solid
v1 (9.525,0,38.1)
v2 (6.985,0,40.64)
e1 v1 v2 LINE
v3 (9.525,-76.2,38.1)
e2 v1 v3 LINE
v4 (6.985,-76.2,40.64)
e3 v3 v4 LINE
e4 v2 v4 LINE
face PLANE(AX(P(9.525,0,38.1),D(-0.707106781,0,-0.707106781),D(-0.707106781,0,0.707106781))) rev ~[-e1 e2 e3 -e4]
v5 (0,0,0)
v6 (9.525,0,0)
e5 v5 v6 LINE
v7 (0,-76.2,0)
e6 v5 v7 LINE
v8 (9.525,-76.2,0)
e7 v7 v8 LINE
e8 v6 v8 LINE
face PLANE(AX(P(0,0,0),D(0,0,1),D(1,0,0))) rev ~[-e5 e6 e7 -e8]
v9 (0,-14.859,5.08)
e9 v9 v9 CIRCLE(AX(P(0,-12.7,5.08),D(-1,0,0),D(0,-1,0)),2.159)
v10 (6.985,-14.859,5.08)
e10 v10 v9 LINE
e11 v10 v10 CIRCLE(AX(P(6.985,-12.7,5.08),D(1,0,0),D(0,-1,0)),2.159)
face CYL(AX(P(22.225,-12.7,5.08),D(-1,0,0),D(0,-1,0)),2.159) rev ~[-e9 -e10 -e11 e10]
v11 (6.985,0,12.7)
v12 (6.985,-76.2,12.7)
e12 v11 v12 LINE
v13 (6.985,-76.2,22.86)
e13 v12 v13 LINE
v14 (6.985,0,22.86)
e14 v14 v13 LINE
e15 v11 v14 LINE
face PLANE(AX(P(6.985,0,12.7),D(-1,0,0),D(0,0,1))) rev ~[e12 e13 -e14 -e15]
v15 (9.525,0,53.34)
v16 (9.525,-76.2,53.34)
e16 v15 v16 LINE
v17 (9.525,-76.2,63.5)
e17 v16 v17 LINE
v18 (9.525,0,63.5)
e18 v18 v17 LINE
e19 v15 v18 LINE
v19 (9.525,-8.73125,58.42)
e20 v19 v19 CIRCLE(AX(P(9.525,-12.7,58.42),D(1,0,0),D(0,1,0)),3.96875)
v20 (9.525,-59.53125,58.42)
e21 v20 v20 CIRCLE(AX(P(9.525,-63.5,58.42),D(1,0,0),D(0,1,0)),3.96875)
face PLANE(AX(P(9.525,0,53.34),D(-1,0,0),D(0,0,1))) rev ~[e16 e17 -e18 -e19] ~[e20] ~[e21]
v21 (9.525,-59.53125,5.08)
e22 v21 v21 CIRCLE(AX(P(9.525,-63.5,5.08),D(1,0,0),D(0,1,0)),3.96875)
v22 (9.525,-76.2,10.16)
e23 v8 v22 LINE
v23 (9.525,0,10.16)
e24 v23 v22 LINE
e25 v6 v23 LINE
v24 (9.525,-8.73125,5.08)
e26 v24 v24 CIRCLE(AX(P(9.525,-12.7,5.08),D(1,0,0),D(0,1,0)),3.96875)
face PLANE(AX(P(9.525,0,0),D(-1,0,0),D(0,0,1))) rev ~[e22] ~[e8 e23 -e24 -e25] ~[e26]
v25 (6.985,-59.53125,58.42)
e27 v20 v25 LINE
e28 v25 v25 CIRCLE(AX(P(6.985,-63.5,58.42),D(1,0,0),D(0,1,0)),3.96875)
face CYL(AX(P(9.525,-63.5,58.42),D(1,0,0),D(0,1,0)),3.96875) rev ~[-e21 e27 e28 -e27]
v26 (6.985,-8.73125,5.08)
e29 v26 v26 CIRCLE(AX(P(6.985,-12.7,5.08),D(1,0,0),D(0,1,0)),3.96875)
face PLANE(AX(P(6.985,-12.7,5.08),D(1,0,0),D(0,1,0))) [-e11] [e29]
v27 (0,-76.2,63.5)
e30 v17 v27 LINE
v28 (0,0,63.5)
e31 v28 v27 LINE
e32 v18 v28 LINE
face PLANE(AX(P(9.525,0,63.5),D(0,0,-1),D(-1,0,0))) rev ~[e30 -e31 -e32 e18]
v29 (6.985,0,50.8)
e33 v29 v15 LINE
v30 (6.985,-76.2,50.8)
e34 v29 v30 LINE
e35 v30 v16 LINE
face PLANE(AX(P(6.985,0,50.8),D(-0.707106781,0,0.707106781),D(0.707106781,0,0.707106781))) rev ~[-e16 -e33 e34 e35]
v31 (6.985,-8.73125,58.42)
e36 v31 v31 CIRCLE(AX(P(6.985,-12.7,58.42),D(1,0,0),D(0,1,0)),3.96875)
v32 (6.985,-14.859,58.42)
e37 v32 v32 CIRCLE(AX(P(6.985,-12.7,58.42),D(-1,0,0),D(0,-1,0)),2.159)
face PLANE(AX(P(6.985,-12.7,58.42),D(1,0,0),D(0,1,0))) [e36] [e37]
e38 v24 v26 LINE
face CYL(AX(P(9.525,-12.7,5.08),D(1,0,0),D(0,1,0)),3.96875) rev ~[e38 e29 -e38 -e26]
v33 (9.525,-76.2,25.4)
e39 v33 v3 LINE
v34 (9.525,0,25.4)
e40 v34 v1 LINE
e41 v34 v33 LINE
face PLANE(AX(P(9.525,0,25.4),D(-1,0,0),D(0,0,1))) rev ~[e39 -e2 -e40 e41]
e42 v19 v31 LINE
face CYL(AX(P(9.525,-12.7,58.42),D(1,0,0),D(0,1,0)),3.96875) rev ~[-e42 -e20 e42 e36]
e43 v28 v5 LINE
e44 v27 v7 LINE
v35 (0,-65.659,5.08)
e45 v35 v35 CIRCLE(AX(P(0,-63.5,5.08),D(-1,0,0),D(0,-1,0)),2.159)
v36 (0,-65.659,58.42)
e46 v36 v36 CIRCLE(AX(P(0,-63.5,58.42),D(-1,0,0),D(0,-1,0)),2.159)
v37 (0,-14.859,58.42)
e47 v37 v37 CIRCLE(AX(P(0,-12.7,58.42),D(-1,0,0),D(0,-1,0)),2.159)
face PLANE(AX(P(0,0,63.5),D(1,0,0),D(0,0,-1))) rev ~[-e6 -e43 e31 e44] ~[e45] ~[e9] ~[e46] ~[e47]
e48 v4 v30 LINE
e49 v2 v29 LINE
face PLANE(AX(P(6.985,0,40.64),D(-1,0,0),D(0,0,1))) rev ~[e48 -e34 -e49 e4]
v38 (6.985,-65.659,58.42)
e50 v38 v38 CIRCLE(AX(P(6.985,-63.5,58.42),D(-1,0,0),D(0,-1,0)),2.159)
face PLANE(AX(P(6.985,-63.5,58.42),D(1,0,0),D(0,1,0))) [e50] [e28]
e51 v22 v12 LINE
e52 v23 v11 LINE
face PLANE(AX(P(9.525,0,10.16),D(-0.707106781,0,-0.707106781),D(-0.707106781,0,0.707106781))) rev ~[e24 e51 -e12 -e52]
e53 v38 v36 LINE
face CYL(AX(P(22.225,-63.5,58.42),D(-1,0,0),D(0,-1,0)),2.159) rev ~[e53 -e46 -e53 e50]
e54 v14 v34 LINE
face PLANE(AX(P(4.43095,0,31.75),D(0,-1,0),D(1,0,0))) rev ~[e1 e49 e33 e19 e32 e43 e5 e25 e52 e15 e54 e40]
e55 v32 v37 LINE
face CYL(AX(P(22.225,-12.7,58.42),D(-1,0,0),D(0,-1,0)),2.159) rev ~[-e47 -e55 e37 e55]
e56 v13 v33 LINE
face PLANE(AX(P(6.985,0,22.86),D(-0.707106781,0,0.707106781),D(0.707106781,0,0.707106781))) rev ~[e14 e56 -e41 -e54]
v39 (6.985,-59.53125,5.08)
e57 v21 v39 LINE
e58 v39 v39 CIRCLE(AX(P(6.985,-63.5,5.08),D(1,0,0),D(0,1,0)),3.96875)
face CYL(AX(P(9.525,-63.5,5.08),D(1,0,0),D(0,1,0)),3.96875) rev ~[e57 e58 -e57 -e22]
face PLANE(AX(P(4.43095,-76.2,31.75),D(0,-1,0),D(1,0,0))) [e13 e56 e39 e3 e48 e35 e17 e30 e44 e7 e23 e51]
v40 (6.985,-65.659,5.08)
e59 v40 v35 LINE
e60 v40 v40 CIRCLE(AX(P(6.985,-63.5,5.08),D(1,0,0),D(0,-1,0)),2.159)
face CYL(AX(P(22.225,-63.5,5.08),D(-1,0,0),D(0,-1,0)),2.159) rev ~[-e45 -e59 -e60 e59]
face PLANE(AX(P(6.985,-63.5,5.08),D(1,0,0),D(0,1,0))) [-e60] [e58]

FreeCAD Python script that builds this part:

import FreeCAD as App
import Part
import Sketcher
Q = App.Units.Quantity

doc = App.newDocument("Part")
body = doc.addObject("PartDesign::Body", "Body")

sketch1 = body.newObject("Sketcher::SketchObject", "Sketch")
sketch1.AttachmentSupport = (doc.getObject("XZ_Plane"), [""])
sketch1.MapMode = "FlatFace"
sketch1.addGeometry([
    Part.LineSegment(App.Vector(0, 63.5, 0), App.Vector(0, 0, 0)),
    Part.LineSegment(App.Vector(0, 0, 0), App.Vector(9.525, 0, 0)),
    Part.LineSegment(App.Vector(9.525, 0, 0), App.Vector(9.525, 10.16, 0)),
    Part.LineSegment(App.Vector(9.525, 10.16, 0), App.Vector(6.985, 12.7, 0)),
    Part.LineSegment(App.Vector(6.985, 12.7, 0), App.Vector(6.985, 22.86, 0)),
    Part.LineSegment(App.Vector(6.985, 22.86, 0), App.Vector(9.525, 25.4, 0)),
    Part.LineSegment(App.Vector(9.525, 25.4, 0), App.Vector(9.525, 38.1, 0)),
    Part.LineSegment(App.Vector(9.525, 38.1, 0), App.Vector(6.985, 40.64, 0)),
    Part.LineSegment(App.Vector(6.985, 40.64, 0), App.Vector(6.985, 50.8, 0)),
    Part.LineSegment(App.Vector(6.985, 50.8, 0), App.Vector(9.525, 53.34, 0)),
    Part.LineSegment(App.Vector(9.525, 53.34, 0), App.Vector(9.525, 63.5, 0)),
    Part.LineSegment(App.Vector(9.525, 63.5, 0), App.Vector(0, 63.5, 0)),
], False)
sketch1.addConstraint([
    Sketcher.Constraint("Coincident", 0, 2, 1, 1),
    Sketcher.Constraint("Coincident", 1, 2, 2, 1),
    Sketcher.Constraint("Coincident", 2, 2, 3, 1),
    Sketcher.Constraint("Coincident", 3, 2, 4, 1),
    Sketcher.Constraint("Coincident", 4, 2, 5, 1),
    Sketcher.Constraint("Coincident", 5, 2, 6, 1),
    Sketcher.Constraint("Coincident", 6, 2, 7, 1),
    Sketcher.Constraint("Coincident", 7, 2, 8, 1),
    Sketcher.Constraint("Coincident", 8, 2, 9, 1),
    Sketcher.Constraint("Coincident", 9, 2, 10, 1),
    Sketcher.Constraint("Coincident", 10, 2, 11, 1),
    Sketcher.Constraint("Coincident", 11, 2, 0, 1),
    Sketcher.Constraint("Vertical", 0),
    Sketcher.Constraint("Horizontal", 1),
    Sketcher.Constraint("Vertical", 2),
    Sketcher.Constraint("Vertical", 4),
    Sketcher.Constraint("Vertical", 6),
    Sketcher.Constraint("Vertical", 8),
    Sketcher.Constraint("Vertical", 10),
    Sketcher.Constraint("Horizontal", 11),
    Sketcher.Constraint("Coincident", 0, 2, -1, 1),
    Sketcher.Constraint("Perpendicular", 3, 5),
    Sketcher.Constraint("Perpendicular", 5, 7),
    Sketcher.Constraint("Perpendicular", 7, 9),
    Sketcher.Constraint("Vertical", 2, 2, 5, 2),
    Sketcher.Constraint("Vertical", 4, 2, 7, 2),
    Sketcher.Constraint("Vertical", 6, 2, 9, 2),
    Sketcher.Constraint("Equal", 2, 4),
    Sketcher.Constraint("Equal", 4, 8),
    Sketcher.Constraint("Equal", 8, 10),
    Sketcher.Constraint("Equal", 3, 5),
    Sketcher.Constraint("DistanceY", 0, 2, 0, 1, Q("2.5 in")),
    Sketcher.Constraint("DistanceY", 2, 1, 2, 2, Q("0.4 in")),
    Sketcher.Constraint("DistanceY", 6, 1, 6, 2, Q("0.5 in")),
    Sketcher.Constraint("DistanceX", 1, 1, 1, 2, Q("0.375 in")),
])
pad1 = body.newObject("PartDesign::Pad", "Pad")
pad1.Profile = sketch1
pad1.Length = Q("3 in")

sketch2 = body.newObject("Sketcher::SketchObject", "Sketch001")
sketch2.AttachmentSupport = (doc.getObject("YZ_Plane"), [""])
sketch2.MapMode = "FlatFace"
sketch2.AttachmentOffset = App.Placement(App.Vector(0, 0, 0.375 * 25.4), App.Rotation())
sketch2.addGeometry([
    Part.Circle(App.Vector(-63.5, 58.42, 0), App.Vector(0, 0, 1), 2.159),
    Part.Circle(App.Vector(-12.7, 58.42, 0), App.Vector(0, 0, 1), 2.159),
    Part.Circle(App.Vector(-63.5, 5.08, 0), App.Vector(0, 0, 1), 2.159),
    Part.Circle(App.Vector(-12.7, 5.08, 0), App.Vector(0, 0, 1), 2.159),
], False)
sketch2.addConstraint([
    Sketcher.Constraint("Equal", 0, 1),
    Sketcher.Constraint("Equal", 1, 2),
    Sketcher.Constraint("Equal", 2, 3),
    Sketcher.Constraint("Horizontal", 0, 3, 1, 3),
    Sketcher.Constraint("Horizontal", 2, 3, 3, 3),
    Sketcher.Constraint("Vertical", 0, 3, 2, 3),
    Sketcher.Constraint("Vertical", 1, 3, 3, 3),
    Sketcher.Constraint("Diameter", 0, Q("0.17 in")),
    Sketcher.Constraint("DistanceX", 0, 3, 1, 3, Q("2 in")),
    Sketcher.Constraint("DistanceX", 0, 3, -1, 1, Q("2.5 in")),
    Sketcher.Constraint("DistanceY", -1, 1, 0, 3, Q("2.3 in")),
    Sketcher.Constraint("DistanceY", -1, 1, 2, 3, Q("0.2 in")),
])
doc.recompute()
hole = body.newObject("PartDesign::Hole", "Hole")
hole.Profile = sketch2
hole.ThreadType = "None"
hole.Diameter = Q("0.17 in")
hole.DepthType = "Dimension"
hole.Depth = Q("0.5 in")
hole.DrillPoint = "Angled"
hole.DrillPointAngle = 118

sketch3 = body.newObject("Sketcher::SketchObject", "Sketch002")
sketch3.AttachmentSupport = (doc.getObject("YZ_Plane"), [""])
sketch3.MapMode = "FlatFace"
sketch3.AttachmentOffset = App.Placement(App.Vector(0, 0, 0.375 * 25.4), App.Rotation())
sketch3.addGeometry([
    Part.Circle(App.Vector(-63.5, 58.42, 0), App.Vector(0, 0, 1), 3.96875),
    Part.Circle(App.Vector(-12.7, 58.42, 0), App.Vector(0, 0, 1), 3.96875),
    Part.Circle(App.Vector(-63.5, 5.08, 0), App.Vector(0, 0, 1), 3.96875),
    Part.Circle(App.Vector(-63.5, 5.08, 0), App.Vector(0, 0, 1), 2.159),
    Part.Circle(App.Vector(-12.7, 5.08, 0), App.Vector(0, 0, 1), 3.96875),
    Part.Circle(App.Vector(-12.7, 5.08, 0), App.Vector(0, 0, 1), 2.159),
], False)
sketch3.addConstraint([
    Sketcher.Constraint("Coincident", 3, 3, 2, 3),
    Sketcher.Constraint("Coincident", 5, 3, 4, 3),
    Sketcher.Constraint("Equal", 0, 1),
    Sketcher.Constraint("Equal", 1, 2),
    Sketcher.Constraint("Equal", 2, 4),
    Sketcher.Constraint("Equal", 3, 5),
    Sketcher.Constraint("Horizontal", 0, 3, 1, 3),
    Sketcher.Constraint("Horizontal", 3, 3, 4, 3),
    Sketcher.Constraint("Vertical", 0, 3, 2, 3),
    Sketcher.Constraint("Vertical", 1, 3, 4, 3),
    Sketcher.Constraint("Diameter", 3, Q("0.17 in")),
    Sketcher.Constraint("Diameter", 0, Q("0.3125 in")),
    Sketcher.Constraint("DistanceX", 0, 3, 1, 3, Q("2 in")),
    Sketcher.Constraint("DistanceX", 0, 3, -1, 1, Q("2.5 in")),
    Sketcher.Constraint("DistanceY", -1, 1, 0, 3, Q("2.3 in")),
    Sketcher.Constraint("DistanceY", -1, 1, 2, 3, Q("0.2 in")),
])
pocket1 = body.newObject("PartDesign::Pocket", "Pocket")
pocket1.Profile = sketch3
pocket1.Length = Q("0.1 in")

doc.recompute()
